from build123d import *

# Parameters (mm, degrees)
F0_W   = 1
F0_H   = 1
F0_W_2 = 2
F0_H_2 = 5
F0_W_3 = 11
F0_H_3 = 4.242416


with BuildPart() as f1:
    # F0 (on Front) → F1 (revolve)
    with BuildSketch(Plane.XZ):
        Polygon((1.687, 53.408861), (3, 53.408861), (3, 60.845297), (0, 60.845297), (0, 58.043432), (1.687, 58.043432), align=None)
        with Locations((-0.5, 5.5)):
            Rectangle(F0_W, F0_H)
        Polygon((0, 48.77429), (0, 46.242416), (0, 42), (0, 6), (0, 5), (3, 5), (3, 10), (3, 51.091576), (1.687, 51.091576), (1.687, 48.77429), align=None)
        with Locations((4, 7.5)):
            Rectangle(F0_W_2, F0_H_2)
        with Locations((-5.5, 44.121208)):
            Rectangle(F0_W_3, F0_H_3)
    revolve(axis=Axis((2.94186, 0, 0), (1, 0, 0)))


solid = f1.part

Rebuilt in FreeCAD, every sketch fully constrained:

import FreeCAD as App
import Part
import Sketcher

V = App.Vector
Q = App.Units.Quantity

doc = App.newDocument("Part")
body = doc.addObject("PartDesign::Body", "Body")
body.AllowCompound = True

# Sketch on XZ plane
sketch1 = doc.addObject("Sketcher::SketchObject", "Sketch")
body.addObject(sketch1)
sketch1.AttachmentSupport = (doc.XZ_Plane, [""])
sketch1.MapMode = "FlatFace"
sketch1.addGeometry([
    Part.LineSegment(V(1.7, 53.4, 0), V(3, 53.4, 0)),  # 0
    Part.LineSegment(V(3, 53.4, 0), V(3, 60.8, 0)),  # 1
    Part.LineSegment(V(3, 60.8, 0), V(0, 60.8, 0)),  # 2
    Part.LineSegment(V(0, 60.8, 0), V(0, 58, 0)),  # 3
    Part.LineSegment(V(0, 58, 0), V(1.7, 58, 0)),  # 4
    Part.LineSegment(V(1.7, 58, 0), V(1.7, 53.4, 0)),  # 5
    Part.LineSegment(V(-1, 6, 0), V(-1, 5, 0)),  # 6
    Part.LineSegment(V(-1, 5, 0), V(5, 5, 0)),  # 7
    Part.LineSegment(V(5, 5, 0), V(5, 10, 0)),  # 8
    Part.LineSegment(V(5, 10, 0), V(3, 10, 0)),  # 9
    Part.LineSegment(V(3, 10, 0), V(3, 51.1, 0)),  # 10
    Part.LineSegment(V(3, 51.1, 0), V(1.7, 51.1, 0)),  # 11
    Part.LineSegment(V(1.7, 51.1, 0), V(1.7, 48.8, 0)),  # 12
    Part.LineSegment(V(1.7, 48.8, 0), V(0, 48.8, 0)),  # 13
    Part.LineSegment(V(0, 48.8, 0), V(0, 46.2, 0)),  # 14
    Part.LineSegment(V(0, 46.2, 0), V(-11, 46.2, 0)),  # 15
    Part.LineSegment(V(-11, 46.2, 0), V(-11, 42, 0)),  # 16
    Part.LineSegment(V(-11, 42, 0), V(0, 42, 0)),  # 17
    Part.LineSegment(V(0, 42, 0), V(0, 6, 0)),  # 18
    Part.LineSegment(V(0, 6, 0), V(-1, 6, 0)),  # 19
], False)
sketch1.addConstraint([
    Sketcher.Constraint("Coincident", 0, 2, 1, 1),
    Sketcher.Constraint("Coincident", 1, 2, 2, 1),
    Sketcher.Constraint("Coincident", 2, 2, 3, 1),
    Sketcher.Constraint("Coincident", 3, 2, 4, 1),
    Sketcher.Constraint("Coincident", 4, 2, 5, 1),
    Sketcher.Constraint("Coincident", 5, 2, 0, 1),
    Sketcher.Constraint("Coincident", 6, 2, 7, 1),
    Sketcher.Constraint("Coincident", 7, 2, 8, 1),
    Sketcher.Constraint("Coincident", 8, 2, 9, 1),
    Sketcher.Constraint("Coincident", 9, 2, 10, 1),
    Sketcher.Constraint("Coincident", 10, 2, 11, 1),
    Sketcher.Constraint("Coincident", 11, 2, 12, 1),
    Sketcher.Constraint("Coincident", 12, 2, 13, 1),
    Sketcher.Constraint("Coincident", 13, 2, 14, 1),
    Sketcher.Constraint("Coincident", 14, 2, 15, 1),
    Sketcher.Constraint("Coincident", 15, 2, 16, 1),
    Sketcher.Constraint("Coincident", 16, 2, 17, 1),
    Sketcher.Constraint("Coincident", 17, 2, 18, 1),
    Sketcher.Constraint("Coincident", 18, 2, 19, 1),
    Sketcher.Constraint("Coincident", 19, 2, 6, 1),
    Sketcher.Constraint("Horizontal", 0),
    Sketcher.Constraint("Vertical", 1),
    Sketcher.Constraint("Horizontal", 2),
    Sketcher.Constraint("Vertical", 3),
    Sketcher.Constraint("Horizontal", 4),
    Sketcher.Constraint("Vertical", 5),
    Sketcher.Constraint("Vertical", 6),
    Sketcher.Constraint("Horizontal", 7),
    Sketcher.Constraint("Vertical", 8),
    Sketcher.Constraint("Horizontal", 9),
    Sketcher.Constraint("Vertical", 10),
    Sketcher.Constraint("Horizontal", 11),
    Sketcher.Constraint("Vertical", 12),
    Sketcher.Constraint("Horizontal", 13),
    Sketcher.Constraint("Vertical", 14),
    Sketcher.Constraint("Horizontal", 15),
    Sketcher.Constraint("Vertical", 16),
    Sketcher.Constraint("Horizontal", 17),
    Sketcher.Constraint("Vertical", 18),
    Sketcher.Constraint("Horizontal", 19),
    Sketcher.Constraint("PointOnObject", 2, 2, -2),
    Sketcher.Constraint("PointOnObject", 13, 2, -2),
    Sketcher.Constraint("PointOnObject", 17, 2, -2),
    Sketcher.Constraint("Vertical", 1, 2, 9, 2),
    Sketcher.Constraint("Vertical", 5, 2, 11, 2),
    Sketcher.Constraint("Equal", 19, 6),
    Sketcher.Constraint("DistanceX", 2, 2, 2, 1, Q("3 mm")),
    Sketcher.Constraint("DistanceX", 7, 1, 7, 2, Q("6 mm")),
    Sketcher.Constraint("DistanceX", 9, 2, 9, 1, Q("2 mm")),
    Sketcher.Constraint("DistanceX", 15, 2, 15, 1, Q("11 mm")),
    Sketcher.Constraint("DistanceY", 8, 1, 8, 2, Q("5 mm")),
    Sketcher.Constraint("DistanceY", 18, 2, 18, 1, Q("36 mm")),
    Sketcher.Constraint("DistanceY", -1, 1, 6, 2, Q("5 mm")),
    Sketcher.Constraint("DistanceX", 0, 1, 0, 2, Q("1.313 mm")),
    Sketcher.Constraint("DistanceY", 5, 2, 5, 1, Q("4.634571 mm")),
    Sketcher.Constraint("DistanceY", 1, 1, 1, 2, Q("7.436436 mm")),
    Sketcher.Constraint("DistanceY", 10, 1, 10, 2, Q("41.091576 mm")),
    Sketcher.Constraint("DistanceY", 12, 2, 12, 1, Q("2.317286 mm")),
    Sketcher.Constraint("DistanceY", 14, 2, 14, 1, Q("2.531874 mm")),
    Sketcher.Constraint("DistanceY", -1, 1, 0, 2, Q("53.408861 mm")),
])
revolution = doc.addObject("PartDesign::Revolution", "Revolution")
body.addObject(revolution)
revolution.Profile = sketch1
revolution.ReferenceAxis = (sketch1, ["H_Axis"])
revolution.Angle = 360

doc.recompute()
